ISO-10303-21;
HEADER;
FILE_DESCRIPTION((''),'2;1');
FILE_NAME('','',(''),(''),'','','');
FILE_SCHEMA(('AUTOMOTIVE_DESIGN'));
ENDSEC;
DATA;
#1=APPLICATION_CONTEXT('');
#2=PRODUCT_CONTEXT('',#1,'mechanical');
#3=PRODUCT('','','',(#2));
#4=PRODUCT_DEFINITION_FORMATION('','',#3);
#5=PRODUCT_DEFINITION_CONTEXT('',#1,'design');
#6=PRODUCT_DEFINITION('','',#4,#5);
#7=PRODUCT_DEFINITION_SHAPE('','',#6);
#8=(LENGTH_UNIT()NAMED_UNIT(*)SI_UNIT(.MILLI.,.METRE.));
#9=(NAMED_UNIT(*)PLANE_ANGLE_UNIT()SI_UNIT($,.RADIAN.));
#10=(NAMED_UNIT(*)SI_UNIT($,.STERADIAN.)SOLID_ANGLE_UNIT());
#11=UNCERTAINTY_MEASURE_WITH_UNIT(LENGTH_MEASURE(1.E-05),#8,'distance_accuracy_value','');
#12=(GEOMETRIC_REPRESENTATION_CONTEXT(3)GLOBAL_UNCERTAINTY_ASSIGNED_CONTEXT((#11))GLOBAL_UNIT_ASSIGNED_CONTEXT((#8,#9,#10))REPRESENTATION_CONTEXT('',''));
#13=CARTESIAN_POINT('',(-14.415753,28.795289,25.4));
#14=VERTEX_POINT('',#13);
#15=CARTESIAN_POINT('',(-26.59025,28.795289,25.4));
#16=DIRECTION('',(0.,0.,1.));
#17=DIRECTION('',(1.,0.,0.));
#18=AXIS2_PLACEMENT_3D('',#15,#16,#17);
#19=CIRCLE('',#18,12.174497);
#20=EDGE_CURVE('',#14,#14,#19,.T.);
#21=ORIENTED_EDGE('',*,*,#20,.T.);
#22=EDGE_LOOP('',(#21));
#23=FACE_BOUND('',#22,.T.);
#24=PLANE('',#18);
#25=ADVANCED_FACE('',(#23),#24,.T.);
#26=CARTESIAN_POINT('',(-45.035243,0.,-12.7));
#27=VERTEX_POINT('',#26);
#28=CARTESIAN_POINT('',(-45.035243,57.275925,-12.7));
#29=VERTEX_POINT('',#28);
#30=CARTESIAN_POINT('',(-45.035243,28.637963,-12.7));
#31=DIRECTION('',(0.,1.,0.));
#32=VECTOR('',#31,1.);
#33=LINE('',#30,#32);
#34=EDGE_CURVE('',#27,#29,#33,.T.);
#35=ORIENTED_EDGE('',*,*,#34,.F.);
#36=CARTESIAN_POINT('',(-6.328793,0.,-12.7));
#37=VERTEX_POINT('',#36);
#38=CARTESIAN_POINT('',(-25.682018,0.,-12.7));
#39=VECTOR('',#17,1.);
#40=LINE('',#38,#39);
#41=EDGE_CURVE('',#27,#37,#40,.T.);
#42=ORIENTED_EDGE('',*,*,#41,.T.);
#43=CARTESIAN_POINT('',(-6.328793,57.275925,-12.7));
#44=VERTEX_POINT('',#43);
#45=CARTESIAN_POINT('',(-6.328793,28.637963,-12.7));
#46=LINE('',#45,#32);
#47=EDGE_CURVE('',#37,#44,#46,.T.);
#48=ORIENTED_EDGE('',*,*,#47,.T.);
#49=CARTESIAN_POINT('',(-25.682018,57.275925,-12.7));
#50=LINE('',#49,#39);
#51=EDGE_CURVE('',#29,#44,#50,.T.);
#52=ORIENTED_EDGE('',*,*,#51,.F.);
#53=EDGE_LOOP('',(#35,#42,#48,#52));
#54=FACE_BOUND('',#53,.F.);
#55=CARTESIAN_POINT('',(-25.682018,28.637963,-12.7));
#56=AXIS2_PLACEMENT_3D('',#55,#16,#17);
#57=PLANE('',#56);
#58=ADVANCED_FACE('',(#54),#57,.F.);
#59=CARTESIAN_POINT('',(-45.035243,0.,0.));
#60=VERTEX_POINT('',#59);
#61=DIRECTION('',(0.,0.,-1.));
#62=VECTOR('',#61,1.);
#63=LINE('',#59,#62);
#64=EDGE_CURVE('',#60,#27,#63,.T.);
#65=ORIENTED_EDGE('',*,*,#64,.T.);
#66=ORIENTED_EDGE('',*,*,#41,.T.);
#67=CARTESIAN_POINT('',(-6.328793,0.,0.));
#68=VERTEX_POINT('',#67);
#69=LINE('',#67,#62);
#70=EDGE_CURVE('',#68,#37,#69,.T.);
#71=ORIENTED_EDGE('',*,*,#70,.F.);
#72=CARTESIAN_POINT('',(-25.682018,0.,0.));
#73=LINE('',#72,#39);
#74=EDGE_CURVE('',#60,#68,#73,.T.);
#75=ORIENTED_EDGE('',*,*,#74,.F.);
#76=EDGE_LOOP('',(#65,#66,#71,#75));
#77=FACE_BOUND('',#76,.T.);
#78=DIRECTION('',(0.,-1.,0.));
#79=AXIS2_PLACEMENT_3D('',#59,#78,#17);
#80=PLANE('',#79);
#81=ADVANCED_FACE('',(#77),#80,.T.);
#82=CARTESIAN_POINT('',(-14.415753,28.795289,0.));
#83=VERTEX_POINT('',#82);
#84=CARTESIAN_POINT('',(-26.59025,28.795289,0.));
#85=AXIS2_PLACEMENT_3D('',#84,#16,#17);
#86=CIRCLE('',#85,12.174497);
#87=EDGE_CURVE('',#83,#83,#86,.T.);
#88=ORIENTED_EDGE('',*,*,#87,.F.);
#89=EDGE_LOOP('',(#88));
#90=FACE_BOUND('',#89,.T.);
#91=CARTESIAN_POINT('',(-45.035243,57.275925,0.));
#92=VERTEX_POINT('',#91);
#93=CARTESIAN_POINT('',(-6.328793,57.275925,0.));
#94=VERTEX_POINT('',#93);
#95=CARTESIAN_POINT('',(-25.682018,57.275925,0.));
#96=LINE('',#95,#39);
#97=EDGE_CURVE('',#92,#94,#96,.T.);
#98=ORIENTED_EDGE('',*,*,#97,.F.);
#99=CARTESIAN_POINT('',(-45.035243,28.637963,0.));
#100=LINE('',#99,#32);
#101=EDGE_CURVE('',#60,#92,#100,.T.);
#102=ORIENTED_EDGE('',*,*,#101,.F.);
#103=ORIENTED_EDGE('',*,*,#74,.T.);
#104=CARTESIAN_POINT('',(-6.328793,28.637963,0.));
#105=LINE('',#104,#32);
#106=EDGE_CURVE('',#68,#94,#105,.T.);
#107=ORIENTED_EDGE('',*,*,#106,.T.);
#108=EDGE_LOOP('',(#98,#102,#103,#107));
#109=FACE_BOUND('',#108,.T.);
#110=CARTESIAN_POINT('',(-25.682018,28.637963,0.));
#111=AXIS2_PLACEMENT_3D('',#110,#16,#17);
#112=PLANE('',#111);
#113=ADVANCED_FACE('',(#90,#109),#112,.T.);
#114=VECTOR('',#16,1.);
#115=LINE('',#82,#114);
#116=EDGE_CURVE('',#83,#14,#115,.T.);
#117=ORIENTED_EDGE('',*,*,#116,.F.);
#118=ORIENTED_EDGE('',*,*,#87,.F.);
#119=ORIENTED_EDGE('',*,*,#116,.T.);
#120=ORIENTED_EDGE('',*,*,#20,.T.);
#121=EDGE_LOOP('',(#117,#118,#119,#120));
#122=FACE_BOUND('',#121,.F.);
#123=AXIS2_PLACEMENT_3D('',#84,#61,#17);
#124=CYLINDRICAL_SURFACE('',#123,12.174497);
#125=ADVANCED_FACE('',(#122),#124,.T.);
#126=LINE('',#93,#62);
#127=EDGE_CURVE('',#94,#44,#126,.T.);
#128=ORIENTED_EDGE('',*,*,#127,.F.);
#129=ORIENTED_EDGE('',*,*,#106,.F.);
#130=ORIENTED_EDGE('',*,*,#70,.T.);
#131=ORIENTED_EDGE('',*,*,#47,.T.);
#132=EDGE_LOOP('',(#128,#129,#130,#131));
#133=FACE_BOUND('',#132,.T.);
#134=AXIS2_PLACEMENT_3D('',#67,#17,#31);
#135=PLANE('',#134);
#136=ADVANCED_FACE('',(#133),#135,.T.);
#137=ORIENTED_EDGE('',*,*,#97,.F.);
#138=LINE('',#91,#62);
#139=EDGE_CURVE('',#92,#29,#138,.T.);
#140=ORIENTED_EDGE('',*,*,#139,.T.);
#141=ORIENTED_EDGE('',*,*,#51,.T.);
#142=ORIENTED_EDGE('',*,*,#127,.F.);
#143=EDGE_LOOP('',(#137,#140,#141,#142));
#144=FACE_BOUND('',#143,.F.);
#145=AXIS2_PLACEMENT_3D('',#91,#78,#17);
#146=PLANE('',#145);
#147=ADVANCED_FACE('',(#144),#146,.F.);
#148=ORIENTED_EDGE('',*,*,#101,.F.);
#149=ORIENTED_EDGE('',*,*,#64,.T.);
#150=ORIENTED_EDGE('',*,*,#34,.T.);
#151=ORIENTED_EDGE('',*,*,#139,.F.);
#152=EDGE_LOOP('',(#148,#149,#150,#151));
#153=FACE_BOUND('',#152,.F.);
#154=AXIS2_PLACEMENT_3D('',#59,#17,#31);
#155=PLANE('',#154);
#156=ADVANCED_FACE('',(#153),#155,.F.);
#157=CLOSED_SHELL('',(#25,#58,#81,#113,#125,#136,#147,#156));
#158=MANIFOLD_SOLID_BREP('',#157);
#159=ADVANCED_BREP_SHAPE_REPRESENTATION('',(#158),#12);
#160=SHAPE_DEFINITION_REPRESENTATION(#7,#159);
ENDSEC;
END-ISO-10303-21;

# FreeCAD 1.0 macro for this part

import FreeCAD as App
import Part
import Sketcher

V = App.Vector
Q = App.Units.Quantity

doc = App.newDocument("Part")
body = doc.addObject("PartDesign::Body", "Body")

sketch1 = doc.addObject("Sketcher::SketchObject", "Sketch")
body.addObject(sketch1)
sketch1.AttachmentSupport = (doc.XY_Plane, [""])
sketch1.MapMode = "FlatFace"
sketch1.addGeometry([
    Part.LineSegment(V(-45, 57, 0), V(-45, 0, 0)),
    Part.LineSegment(V(-45, 0, 0), V(-6, 0, 0)),
    Part.LineSegment(V(-6, 0, 0), V(-6, 57, 0)),
    Part.LineSegment(V(-6, 57, 0), V(-45, 57, 0)),
], False)
sketch1.addConstraint([
    Sketcher.Constraint("Coincident", 0, 2, 1, 1),
    Sketcher.Constraint("Coincident", 1, 2, 2, 1),
    Sketcher.Constraint("Coincident", 2, 2, 3, 1),
    Sketcher.Constraint("Coincident", 3, 2, 0, 1),
    Sketcher.Constraint("Vertical", 0),
    Sketcher.Constraint("Horizontal", 1),
    Sketcher.Constraint("Vertical", 2),
    Sketcher.Constraint("Horizontal", 3),
    Sketcher.Constraint("PointOnObject", 0, 2, -1),
    Sketcher.Constraint("DistanceX", 1, 1, 1, 2, Q("38.70645 mm")),
    Sketcher.Constraint("DistanceY", 0, 2, 0, 1, Q("57.275925 mm")),
    Sketcher.Constraint("DistanceX", 0, 2, -1, 1, Q("45.035243 mm")),
])
pad1 = doc.addObject("PartDesign::Pad", "Pad")
body.addObject(pad1)
pad1.Profile = sketch1
pad1.Length = Q("0.5 in")
pad1.Reversed = True

sketch2 = doc.addObject("Sketcher::SketchObject", "Sketch001")
body.addObject(sketch2)
sketch2.AttachmentSupport = (doc.XY_Plane, [""])
sketch2.MapMode = "FlatFace"
sketch2.addGeometry(Part.Circle(V(-27, 29, 0), V(0, 0, 1), 12), False)
sketch2.addConstraint([
    Sketcher.Constraint("Diameter", 0, Q("24.348994 mm")),
    Sketcher.Constraint("DistanceX", 0, 3, -1, 1, Q("26.59025 mm")),
    Sketcher.Constraint("DistanceY", -1, 1, 0, 3, Q("28.795289 mm")),
])
pad2 = doc.addObject("PartDesign::Pad", "Pad001")
body.addObject(pad2)
pad2.Profile = sketch2
pad2.Length = Q("1 in")

doc.recompute()
